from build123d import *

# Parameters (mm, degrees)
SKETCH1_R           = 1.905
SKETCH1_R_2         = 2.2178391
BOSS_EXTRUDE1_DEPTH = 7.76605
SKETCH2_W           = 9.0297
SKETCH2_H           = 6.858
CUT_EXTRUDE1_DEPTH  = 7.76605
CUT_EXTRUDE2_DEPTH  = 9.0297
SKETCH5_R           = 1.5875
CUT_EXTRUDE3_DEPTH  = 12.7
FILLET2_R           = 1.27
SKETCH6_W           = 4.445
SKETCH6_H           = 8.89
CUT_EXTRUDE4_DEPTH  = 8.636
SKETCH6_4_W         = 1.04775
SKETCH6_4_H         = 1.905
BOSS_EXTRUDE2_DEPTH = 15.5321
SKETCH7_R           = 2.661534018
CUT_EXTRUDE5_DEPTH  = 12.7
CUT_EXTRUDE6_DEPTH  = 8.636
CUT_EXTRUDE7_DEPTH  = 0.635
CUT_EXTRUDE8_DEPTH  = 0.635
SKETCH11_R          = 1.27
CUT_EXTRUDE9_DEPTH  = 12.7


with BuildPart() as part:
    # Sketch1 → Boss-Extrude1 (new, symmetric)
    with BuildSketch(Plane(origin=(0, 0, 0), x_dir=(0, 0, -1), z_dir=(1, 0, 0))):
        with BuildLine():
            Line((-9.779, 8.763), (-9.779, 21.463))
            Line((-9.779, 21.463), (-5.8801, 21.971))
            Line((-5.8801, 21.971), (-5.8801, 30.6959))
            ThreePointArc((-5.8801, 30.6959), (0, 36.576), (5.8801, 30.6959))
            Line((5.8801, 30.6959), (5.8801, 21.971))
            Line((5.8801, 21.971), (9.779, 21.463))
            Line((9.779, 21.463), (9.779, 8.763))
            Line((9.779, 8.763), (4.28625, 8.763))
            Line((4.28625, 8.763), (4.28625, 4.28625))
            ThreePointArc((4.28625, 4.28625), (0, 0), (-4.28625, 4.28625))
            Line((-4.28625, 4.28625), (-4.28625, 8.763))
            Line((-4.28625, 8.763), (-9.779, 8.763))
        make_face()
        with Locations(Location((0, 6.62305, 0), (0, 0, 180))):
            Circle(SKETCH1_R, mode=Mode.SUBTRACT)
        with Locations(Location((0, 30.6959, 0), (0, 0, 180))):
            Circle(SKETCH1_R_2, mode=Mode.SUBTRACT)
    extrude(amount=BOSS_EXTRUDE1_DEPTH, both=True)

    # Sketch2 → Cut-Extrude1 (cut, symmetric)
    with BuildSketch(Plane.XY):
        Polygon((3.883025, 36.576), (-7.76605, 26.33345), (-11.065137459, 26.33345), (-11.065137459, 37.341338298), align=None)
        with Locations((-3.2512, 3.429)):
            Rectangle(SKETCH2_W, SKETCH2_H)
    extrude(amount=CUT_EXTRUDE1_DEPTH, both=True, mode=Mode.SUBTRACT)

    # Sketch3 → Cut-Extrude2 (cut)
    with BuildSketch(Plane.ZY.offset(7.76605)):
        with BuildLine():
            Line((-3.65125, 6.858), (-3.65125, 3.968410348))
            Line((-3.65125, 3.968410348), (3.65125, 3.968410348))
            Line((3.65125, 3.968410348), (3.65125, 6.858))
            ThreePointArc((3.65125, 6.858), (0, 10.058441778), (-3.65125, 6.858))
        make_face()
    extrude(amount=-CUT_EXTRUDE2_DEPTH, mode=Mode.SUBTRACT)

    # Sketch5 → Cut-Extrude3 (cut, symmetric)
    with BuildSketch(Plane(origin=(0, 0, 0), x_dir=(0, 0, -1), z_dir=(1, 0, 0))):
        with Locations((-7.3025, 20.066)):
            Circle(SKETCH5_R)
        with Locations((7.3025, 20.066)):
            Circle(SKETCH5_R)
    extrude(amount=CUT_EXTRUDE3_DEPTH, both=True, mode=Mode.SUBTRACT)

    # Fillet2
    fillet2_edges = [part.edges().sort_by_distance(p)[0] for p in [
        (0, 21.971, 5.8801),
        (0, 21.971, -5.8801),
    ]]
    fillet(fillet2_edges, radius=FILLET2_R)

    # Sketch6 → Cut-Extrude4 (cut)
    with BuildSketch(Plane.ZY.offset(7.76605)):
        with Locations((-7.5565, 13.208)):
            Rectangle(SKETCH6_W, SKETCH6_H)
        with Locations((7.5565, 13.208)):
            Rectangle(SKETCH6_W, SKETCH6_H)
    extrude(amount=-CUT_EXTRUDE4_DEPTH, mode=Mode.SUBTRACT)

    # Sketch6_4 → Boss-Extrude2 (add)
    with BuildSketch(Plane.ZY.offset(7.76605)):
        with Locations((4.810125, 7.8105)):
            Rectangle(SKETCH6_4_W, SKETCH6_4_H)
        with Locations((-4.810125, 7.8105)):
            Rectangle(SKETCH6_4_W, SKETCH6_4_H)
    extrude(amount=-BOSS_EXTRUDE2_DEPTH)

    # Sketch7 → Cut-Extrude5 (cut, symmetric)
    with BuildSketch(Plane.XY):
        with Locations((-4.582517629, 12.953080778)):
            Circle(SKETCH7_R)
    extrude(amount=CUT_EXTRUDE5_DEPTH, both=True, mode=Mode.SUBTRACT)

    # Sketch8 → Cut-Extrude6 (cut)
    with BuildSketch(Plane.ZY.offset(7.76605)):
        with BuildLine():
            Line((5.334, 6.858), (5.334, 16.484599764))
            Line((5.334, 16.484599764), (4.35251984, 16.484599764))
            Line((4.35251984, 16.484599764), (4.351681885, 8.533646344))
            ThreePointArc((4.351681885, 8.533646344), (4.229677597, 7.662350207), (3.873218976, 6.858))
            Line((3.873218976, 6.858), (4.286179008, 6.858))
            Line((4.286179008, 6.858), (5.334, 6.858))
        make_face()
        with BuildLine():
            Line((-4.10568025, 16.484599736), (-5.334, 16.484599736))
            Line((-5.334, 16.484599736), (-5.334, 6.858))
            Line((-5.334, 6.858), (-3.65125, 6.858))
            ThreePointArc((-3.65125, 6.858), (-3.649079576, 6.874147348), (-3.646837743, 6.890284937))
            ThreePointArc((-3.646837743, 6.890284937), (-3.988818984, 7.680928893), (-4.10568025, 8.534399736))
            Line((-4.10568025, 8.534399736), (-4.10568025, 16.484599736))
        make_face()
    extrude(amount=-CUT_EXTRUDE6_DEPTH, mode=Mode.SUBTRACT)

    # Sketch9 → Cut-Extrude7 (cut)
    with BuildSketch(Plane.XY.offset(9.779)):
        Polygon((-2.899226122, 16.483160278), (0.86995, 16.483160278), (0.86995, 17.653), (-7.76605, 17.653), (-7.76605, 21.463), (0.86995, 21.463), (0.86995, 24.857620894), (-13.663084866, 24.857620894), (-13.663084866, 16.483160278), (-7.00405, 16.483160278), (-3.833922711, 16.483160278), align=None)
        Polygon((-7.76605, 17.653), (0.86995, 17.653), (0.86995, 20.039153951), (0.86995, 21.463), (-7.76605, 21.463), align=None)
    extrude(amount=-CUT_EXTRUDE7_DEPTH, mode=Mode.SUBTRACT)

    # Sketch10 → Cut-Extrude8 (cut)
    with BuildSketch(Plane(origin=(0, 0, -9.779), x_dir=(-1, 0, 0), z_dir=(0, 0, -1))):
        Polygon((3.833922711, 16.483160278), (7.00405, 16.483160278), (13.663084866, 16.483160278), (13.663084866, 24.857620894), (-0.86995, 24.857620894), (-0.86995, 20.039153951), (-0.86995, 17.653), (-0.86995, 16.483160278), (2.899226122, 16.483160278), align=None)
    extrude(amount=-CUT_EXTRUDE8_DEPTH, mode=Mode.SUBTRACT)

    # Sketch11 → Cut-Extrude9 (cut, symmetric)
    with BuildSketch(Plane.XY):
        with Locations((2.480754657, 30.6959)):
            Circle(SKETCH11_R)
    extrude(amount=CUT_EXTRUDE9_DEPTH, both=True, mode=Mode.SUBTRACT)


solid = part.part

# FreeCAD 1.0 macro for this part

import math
import FreeCAD as App
import Part
import Sketcher
from FreeCAD import Vector
Q = App.Units.Quantity


def edges_at(feature, points):
    """Names of the edges that pass closest to the given points."""
    edges = feature.Shape.Edges
    near = lambda p: min(range(len(edges)), key=lambda i: edges[i].distToShape(Part.Vertex(*p))[0])
    return sorted({f"Edge{near(p) + 1}" for p in points})


def add_polygon(sketch, points):
    """Adds a closed chain of lines whose ends are joined by coincident constraints."""
    first, n = sketch.GeometryCount, len(points)
    for a, b in zip(points, points[1:] + points[:1]):
        sketch.addGeometry(Part.LineSegment(App.Vector(*a, 0), App.Vector(*b, 0)), False)
    for i in range(n):
        sketch.addConstraint(Sketcher.Constraint("Coincident", first + i, 2, first + (i + 1) % n, 1))

doc = App.newDocument("Part")
body = doc.addObject("PartDesign::Body", "Body")

# Sketch on YZ plane
sketch1 = body.newObject("Sketcher::SketchObject", "Sketch")
sketch1.AttachmentSupport = (doc.getObject("YZ_Plane"), [""])
sketch1.MapMode = "FlatFace"
sketch1.addGeometry([
    Part.LineSegment(Vector(21.5, 9.8, 0), Vector(8.8, 9.8, 0)),  # 0
    Part.LineSegment(Vector(8.8, 9.8, 0), Vector(8.8, 4.3, 0)),  # 1
    Part.LineSegment(Vector(8.8, 4.3, 0), Vector(4.3, 4.3, 0)),  # 2
    Part.ArcOfCircle(Part.Circle(Vector(4.3, 0, 0), Vector(0, 0, 1), 4.3), math.radians(90), math.radians(270)),  # 3
    Part.LineSegment(Vector(4.3, -4.3, 0), Vector(8.8, -4.3, 0)),  # 4
    Part.LineSegment(Vector(8.8, -4.3, 0), Vector(8.8, -9.8, 0)),  # 5
    Part.LineSegment(Vector(8.8, -9.8, 0), Vector(21.5, -9.8, 0)),  # 6
    Part.LineSegment(Vector(21.5, -9.8, 0), Vector(22, -5.9, 0)),  # 7
    Part.LineSegment(Vector(22, -5.9, 0), Vector(30.7, -5.9, 0)),  # 8
    Part.ArcOfCircle(Part.Circle(Vector(30.7, 0, 0), Vector(0, 0, 1), 5.9), math.radians(-90), math.radians(90)),  # 9
    Part.LineSegment(Vector(30.7, 5.9, 0), Vector(22, 5.9, 0)),  # 10
    Part.LineSegment(Vector(22, 5.9, 0), Vector(21.5, 9.8, 0)),  # 11
    Part.Circle(Vector(6.6, 0, 0), Vector(0, 0, 1), 1.9),  # 12
    Part.Circle(Vector(30.7, 0, 0), Vector(0, 0, 1), 2.2),  # 13
], False)
sketch1.addConstraint([
    Sketcher.Constraint("Coincident", 0, 2, 1, 1),
    Sketcher.Constraint("Coincident", 1, 2, 2, 1),
    Sketcher.Constraint("Tangent", 2, 2, 3, 1),
    Sketcher.Constraint("Tangent", 3, 2, 4, 1),
    Sketcher.Constraint("Coincident", 4, 2, 5, 1),
    Sketcher.Constraint("Coincident", 5, 2, 6, 1),
    Sketcher.Constraint("Coincident", 6, 2, 7, 1),
    Sketcher.Constraint("Coincident", 7, 2, 8, 1),
    Sketcher.Constraint("Tangent", 8, 2, 9, 1),
    Sketcher.Constraint("Tangent", 9, 2, 10, 1),
    Sketcher.Constraint("Coincident", 10, 2, 11, 1),
    Sketcher.Constraint("Coincident", 11, 2, 0, 1),
    Sketcher.Constraint("Horizontal", 0),
    Sketcher.Constraint("Vertical", 1),
    Sketcher.Constraint("Horizontal", 2),
    Sketcher.Constraint("Horizontal", 4),
    Sketcher.Constraint("Vertical", 5),
    Sketcher.Constraint("Horizontal", 6),
    Sketcher.Constraint("Horizontal", 8),
    Sketcher.Constraint("Horizontal", 10),
    Sketcher.Constraint("Coincident", 13, 3, 9, 3),
    Sketcher.Constraint("Symmetric", 1, 2, 4, 2, -1),
    Sketcher.Constraint("Symmetric", 7, 2, 10, 2, -1),
    Sketcher.Constraint("Symmetric", 6, 2, 11, 2, -1),
    Sketcher.Constraint("PointOnObject", 12, 3, -1),
    Sketcher.Constraint("Diameter", 12, Q("0.15 in")),
    Sketcher.Constraint("DistanceX", 0, 2, 0, 1, Q("0.5 in")),
    Sketcher.Constraint("Radius", 9, Q("0.2315 in")),
    Sketcher.Constraint("DistanceX", 6, 2, 7, 2, Q("0.02 in")),
    Sketcher.Constraint("Diameter", 13, 4.435678),
    Sketcher.Constraint("DistanceX", 8, 1, 8, 2, Q("0.3435 in")),
    Sketcher.Constraint("DistanceX", -1, 1, 0, 2, Q("0.345 in")),
    Sketcher.Constraint("DistanceY", -1, 1, 0, 2, Q("0.385 in")),
    Sketcher.Constraint("Radius", 3, 4.28625),
    Sketcher.Constraint("DistanceX", 3, 3, 12, 3, Q("0.092 in")),
    Sketcher.Constraint("DistanceX", 2, 2, 2, 1, 4.47675),
])
pad1 = body.newObject("PartDesign::Pad", "Pad")
pad1.Profile = sketch1
pad1.Length = Q("0.6115 in")
pad1.Midplane = True

# Sketch on XY plane
sketch2 = body.newObject("Sketcher::SketchObject", "Sketch001")
sketch2.AttachmentSupport = (doc.getObject("XY_Plane"), [""])
sketch2.MapMode = "FlatFace"
add_polygon(sketch2, [(-7.8, 26.3), (3.9, 36.6), (-11.1, 37.3), (-11.1, 26.3)])  # lines 0-3
add_polygon(sketch2, [(-7.8, 6.9), (-7.8, 0), (1.3, 0), (1.3, 6.9)])  # lines 4-7
sketch2.addConstraint([
    Sketcher.Constraint("Vertical", 2),
    Sketcher.Constraint("Horizontal", 3),
    Sketcher.Constraint("Vertical", 4),
    Sketcher.Constraint("Horizontal", 5),
    Sketcher.Constraint("Vertical", 6),
    Sketcher.Constraint("Horizontal", 7),
    Sketcher.Constraint("PointOnObject", 4, 2, -1),
    Sketcher.Constraint("Vertical", 3, 2, 4, 2),
    Sketcher.Constraint("DistanceY", 4, 2, 4, 1, Q("0.27 in")),
    Sketcher.Constraint("DistanceY", -1, 1, 0, 2, Q("1.44 in")),
    Sketcher.Constraint("DistanceX", 5, 1, 5, 2, Q("0.3555 in")),
    Sketcher.Constraint("DistanceY", 2, 2, 2, 1, 11.007888),
    Sketcher.Constraint("DistanceX", 3, 1, 3, 2, 3.299087),
    Sketcher.Constraint("DistanceY", -1, 1, 1, 2, 37.341338),
    Sketcher.Constraint("DistanceX", 3, 2, -1, 1, 7.76605),
    Sketcher.Constraint("Distance", 0, 15.511634),
])
pocket1 = body.newObject("PartDesign::Pocket", "Pocket")
pocket1.Profile = sketch2
pocket1.Length = Q("0.6115 in")
pocket1.Midplane = True

# Sketch on YZ plane
sketch3 = body.newObject("Sketcher::SketchObject", "Sketch002")
sketch3.AttachmentSupport = (doc.getObject("YZ_Plane"), [""])
sketch3.MapMode = "FlatFace"
sketch3.AttachmentOffset = App.Placement(Vector(0, 0, -7.76605), App.Rotation())
sketch3.addGeometry([
    Part.LineSegment(Vector(6.9, -3.7, 0), Vector(4, -3.7, 0)),
    Part.LineSegment(Vector(4, -3.7, 0), Vector(4, 3.7, 0)),
    Part.LineSegment(Vector(4, 3.7, 0), Vector(6.9, 3.7, 0)),
    Part.ArcOfCircle(Part.Circle(Vector(6.4, 0, 0), Vector(0, 0, 1), 3.7), math.radians(-82), math.radians(82)),
], False)
sketch3.addConstraint([
    Sketcher.Constraint("Coincident", 0, 2, 1, 1),
    Sketcher.Constraint("Coincident", 1, 2, 2, 1),
    Sketcher.Constraint("Coincident", 2, 2, 3, 2),
    Sketcher.Constraint("Coincident", 3, 1, 0, 1),
    Sketcher.Constraint("Horizontal", 0),
    Sketcher.Constraint("Vertical", 1),
    Sketcher.Constraint("Horizontal", 2),
    Sketcher.Constraint("Symmetric", 2, 2, 3, 1, -1),
    Sketcher.Constraint("Radius", 3, Q("0.145 in")),
    Sketcher.Constraint("DistanceX", -1, 1, 2, 2, Q("0.27 in")),
    Sketcher.Constraint("DistanceY", 1, 1, 1, 2, Q("0.2875 in")),
    Sketcher.Constraint("DistanceX", 0, 2, 0, 1, 2.88959),
])
pocket2 = body.newObject("PartDesign::Pocket", "Pocket001")
pocket2.Profile = sketch3
pocket2.Length = Q("0.3555 in")
pocket2.Reversed = True

# Sketch on YZ plane
sketch4 = body.newObject("Sketcher::SketchObject", "Sketch003")
sketch4.AttachmentSupport = (doc.getObject("YZ_Plane"), [""])
sketch4.MapMode = "FlatFace"
sketch4.addGeometry([
    Part.Circle(Vector(20.1, 7.3, 0), Vector(0, 0, 1), 1.6),
    Part.Circle(Vector(20.1, -7.3, 0), Vector(0, 0, 1), 1.6),
], False)
sketch4.addConstraint([
    Sketcher.Constraint("Equal", 0, 1),
    Sketcher.Constraint("Symmetric", 0, 3, 1, 3, -1),
    Sketcher.Constraint("Diameter", 0, Q("0.125 in")),
    Sketcher.Constraint("DistanceX", -1, 1, 0, 3, Q("0.79 in")),
    Sketcher.Constraint("DistanceY", 1, 3, 0, 3, Q("0.575 in")),
])
pocket3 = body.newObject("PartDesign::Pocket", "Pocket002")
pocket3.Profile = sketch4
pocket3.Length = Q("1 in")
pocket3.Midplane = True
doc.recompute()

fillet = body.newObject("PartDesign::Fillet", "Fillet")
fillet.Base = (pocket3, edges_at(pocket3, [(0, 21.971, 5.88), (0, 21.971, -5.88)]))
fillet.Radius = Q("0.05 in")

# Sketch on YZ plane
sketch5 = body.newObject("Sketcher::SketchObject", "Sketch004")
sketch5.AttachmentSupport = (doc.getObject("YZ_Plane"), [""])
sketch5.MapMode = "FlatFace"
sketch5.AttachmentOffset = App.Placement(Vector(0, 0, -7.76605), App.Rotation())
add_polygon(sketch5, [(17.7, -9.8), (8.8, -9.8), (8.8, -5.3), (17.7, -5.3)])  # lines 0-3
add_polygon(sketch5, [(17.7, 5.3), (8.8, 5.3), (8.8, 9.8), (17.7, 9.8)])  # lines 4-7
sketch5.addConstraint([
    Sketcher.Constraint("Horizontal", 0),
    Sketcher.Constraint("Vertical", 1),
    Sketcher.Constraint("Horizontal", 2),
    Sketcher.Constraint("Vertical", 3),
    Sketcher.Constraint("Horizontal", 4),
    Sketcher.Constraint("Vertical", 5),
    Sketcher.Constraint("Horizontal", 6),
    Sketcher.Constraint("Vertical", 7),
    Sketcher.Constraint("Symmetric", 1, 2, 4, 2, -1),
    Sketcher.Constraint("Symmetric", 3, 2, 6, 2, -1),
    Sketcher.Constraint("DistanceX", 0, 2, 0, 1, Q("0.35 in")),
    Sketcher.Constraint("DistanceY", 1, 1, 1, 2, Q("0.175 in")),
    Sketcher.Constraint("DistanceY", 1, 2, -1, 1, Q("0.21 in")),
    Sketcher.Constraint("DistanceX", -1, 1, 0, 2, Q("0.345 in")),
])
pocket4 = body.newObject("PartDesign::Pocket", "Pocket003")
pocket4.Profile = sketch5
pocket4.Length = Q("0.34 in")
pocket4.Reversed = True

# Sketch on YZ plane
sketch6 = body.newObject("Sketcher::SketchObject", "Sketch005")
sketch6.AttachmentSupport = (doc.getObject("YZ_Plane"), [""])
sketch6.MapMode = "FlatFace"
sketch6.AttachmentOffset = App.Placement(Vector(0, 0, -7.76605), App.Rotation())
add_polygon(sketch6, [(8.8, 4.3), (6.9, 4.3), (6.9, 5.3), (8.8, 5.3)])  # lines 0-3
add_polygon(sketch6, [(8.8, -5.3), (6.9, -5.3), (6.9, -4.3), (8.8, -4.3)])  # lines 4-7
sketch6.addConstraint([
    Sketcher.Constraint("Horizontal", 0),
    Sketcher.Constraint("Vertical", 1),
    Sketcher.Constraint("Horizontal", 2),
    Sketcher.Constraint("Vertical", 3),
    Sketcher.Constraint("Horizontal", 4),
    Sketcher.Constraint("Vertical", 5),
    Sketcher.Constraint("Horizontal", 6),
    Sketcher.Constraint("Vertical", 7),
    Sketcher.Constraint("Symmetric", 1, 2, 4, 2, -1),
    Sketcher.Constraint("Symmetric", 3, 2, 6, 2, -1),
    Sketcher.Constraint("DistanceX", 0, 2, 0, 1, Q("0.075 in")),
    Sketcher.Constraint("DistanceX", -1, 1, 0, 2, Q("0.27 in")),
    Sketcher.Constraint("DistanceY", -1, 1, 1, 2, Q("0.21 in")),
    Sketcher.Constraint("DistanceY", 5, 2, 0, 2, Q("0.3375 in")),
])
pad2 = body.newObject("PartDesign::Pad", "Pad001")
pad2.Profile = sketch6
pad2.Length = Q("0.6115 in")

# Sketch on XY plane
sketch7 = body.newObject("Sketcher::SketchObject", "Sketch006")
sketch7.AttachmentSupport = (doc.getObject("XY_Plane"), [""])
sketch7.MapMode = "FlatFace"
sketch7.addGeometry(Part.Circle(Vector(-4.6, 13, 0), Vector(0, 0, 1), 2.7), False)
sketch7.addConstraint([
    Sketcher.Constraint("Diameter", 0, 5.323068),
    Sketcher.Constraint("DistanceY", -1, 1, 0, 3, 12.953081),
    Sketcher.Constraint("DistanceX", 0, 3, -1, 1, 4.582518),
])
pocket5 = body.newObject("PartDesign::Pocket", "Pocket004")
pocket5.Profile = sketch7
pocket5.Length = Q("1 in")
pocket5.Midplane = True

# Sketch on YZ plane
sketch8 = body.newObject("Sketcher::SketchObject", "Sketch007")
sketch8.AttachmentSupport = (doc.getObject("YZ_Plane"), [""])
sketch8.MapMode = "FlatFace"
sketch8.AttachmentOffset = App.Placement(Vector(0, 0, -7.76605), App.Rotation())
sketch8.addGeometry([
    Part.LineSegment(Vector(6.858, 5.334, 0), Vector(16.485, 5.334, 0)),  # 0
    Part.LineSegment(Vector(16.485, 5.334, 0), Vector(16.485, 4.353, 0)),  # 1
    Part.LineSegment(Vector(16.485, 4.353, 0), Vector(8.534, 4.352, 0)),  # 2
    Part.ArcOfCircle(Part.Circle(Vector(8.534, 1.177, 0), Vector(0, 0, 1), 3.175), math.radians(90), math.radians(122)),  # 3
    Part.LineSegment(Vector(6.858, 3.873, 0), Vector(6.858, 5.334, 0)),  # 4
    Part.LineSegment(Vector(16.485, -4.106, 0), Vector(16.485, -5.334, 0)),  # 5
    Part.LineSegment(Vector(16.485, -5.334, 0), Vector(6.858, -5.334, 0)),  # 6
    Part.LineSegment(Vector(6.858, -5.334, 0), Vector(6.858, -3.651, 0)),  # 7
    Part.ArcOfCircle(Part.Circle(Vector(6.375, 0, 0), Vector(0, 0, 1), 3.683), math.radians(-82.47), math.radians(-81.96)),  # 8
    Part.ArcOfCircle(Part.Circle(Vector(8.534, -0.931, 0), Vector(0, 0, 1), 3.175), math.radians(-121), math.radians(-90)),  # 9
    Part.LineSegment(Vector(8.534, -4.106, 0), Vector(16.485, -4.106, 0)),  # 10
], False)
sketch8.addConstraint([
    Sketcher.Constraint("Coincident", 0, 2, 1, 1),
    Sketcher.Constraint("Coincident", 1, 2, 2, 1),
    Sketcher.Constraint("Tangent", 2, 2, 3, 1),
    Sketcher.Constraint("Coincident", 3, 2, 4, 1),
    Sketcher.Constraint("Coincident", 4, 2, 0, 1),
    Sketcher.Constraint("Coincident", 5, 2, 6, 1),
    Sketcher.Constraint("Coincident", 6, 2, 7, 1),
    Sketcher.Constraint("Coincident", 7, 2, 8, 1),
    Sketcher.Constraint("Coincident", 8, 2, 9, 1),
    Sketcher.Constraint("Tangent", 9, 2, 10, 1),
    Sketcher.Constraint("Coincident", 10, 2, 5, 1),
    Sketcher.Constraint("Horizontal", 0),
    Sketcher.Constraint("Vertical", 1),
    Sketcher.Constraint("Vertical", 4),
    Sketcher.Constraint("Vertical", 5),
    Sketcher.Constraint("Horizontal", 6),
    Sketcher.Constraint("Vertical", 7),
    Sketcher.Constraint("Horizontal", 10),
    Sketcher.Constraint("Symmetric", 0, 2, 5, 2, -1),
    Sketcher.Constraint("Vertical", 4, 2, 6, 2),
    Sketcher.Constraint("Radius", 9, Q("0.125 in")),
    Sketcher.Constraint("DistanceX", 0, 1, 0, 2, Q("0.379 in")),
    Sketcher.Constraint("DistanceX", 10, 1, 10, 2, Q("0.313 in")),
    Sketcher.Constraint("DistanceY", -1, 1, 0, 2, Q("0.21 in")),
    Sketcher.Constraint("DistanceX", -1, 1, 3, 2, Q("0.27 in")),
    Sketcher.Constraint("Radius", 3, 3.174581),
    Sketcher.Constraint("Radius", 8, 3.68305),
    Sketcher.Constraint("DistanceY", 9, 3, 1, 2, Q("0.208 in")),
    Sketcher.Constraint("DistanceY", 1, 2, 1, 1, 0.98148),
    Sketcher.Constraint("DistanceY", 4, 1, 4, 2, 1.460781),
    Sketcher.Constraint("DistanceY", 7, 1, 7, 2, 1.68275),
    Sketcher.Constraint("DistanceY", -1, 1, 3, 3, 1.177101),
    Sketcher.Constraint("DistanceY", 7, 2, 8, 3, 3.651299),
])
pocket6 = body.newObject("PartDesign::Pocket", "Pocket005")
pocket6.Profile = sketch8
pocket6.Length = Q("0.34 in")
pocket6.Reversed = True

# Sketch on XY plane
sketch9 = body.newObject("Sketcher::SketchObject", "Sketch008")
sketch9.AttachmentSupport = (doc.getObject("XY_Plane"), [""])
sketch9.MapMode = "FlatFace"
sketch9.AttachmentOffset = App.Placement(Vector(0, 0, 0.385 * 25.4), App.Rotation())
add_polygon(sketch9, [(1, 16), (1, 25), (-14, 25), (-14, 16)])  # lines 0-3
sketch9.addConstraint([
    Sketcher.Constraint("Vertical", 0),
    Sketcher.Constraint("Horizontal", 1),
    Sketcher.Constraint("Vertical", 2),
    Sketcher.Constraint("Horizontal", 3),
    Sketcher.Constraint("DistanceY", 0, 1, 0, 2, 8.374461),
    Sketcher.Constraint("DistanceX", 1, 2, 1, 1, 14.533035),
    Sketcher.Constraint("DistanceX", -1, 1, 0, 2, 0.86995),
    Sketcher.Constraint("DistanceY", -1, 1, 0, 2, 24.857621),
])
pocket7 = body.newObject("PartDesign::Pocket", "Pocket006")
pocket7.Profile = sketch9
pocket7.Length = Q("0.025 in")

# Sketch on XY plane
sketch10 = body.newObject("Sketcher::SketchObject", "Sketch009")
sketch10.AttachmentSupport = (doc.getObject("XY_Plane"), [""])
sketch10.MapMode = "FlatFace"
sketch10.AttachmentOffset = App.Placement(Vector(0, 0, -0.385 * 25.4), App.Rotation())
add_polygon(sketch10, [(-14, 16), (-14, 25), (1, 25), (1, 16)])  # lines 0-3
sketch10.addConstraint([
    Sketcher.Constraint("Vertical", 0),
    Sketcher.Constraint("Horizontal", 1),
    Sketcher.Constraint("Vertical", 2),
    Sketcher.Constraint("Horizontal", 3),
    Sketcher.Constraint("DistanceY", 0, 1, 0, 2, 8.374461),
    Sketcher.Constraint("DistanceX", 1, 1, 1, 2, 14.533035),
    Sketcher.Constraint("DistanceY", -1, 1, 0, 2, 24.857621),
    Sketcher.Constraint("DistanceX", -1, 1, 1, 2, 0.86995),
])
pocket8 = body.newObject("PartDesign::Pocket", "Pocket007")
pocket8.Profile = sketch10
pocket8.Length = Q("0.025 in")
pocket8.Reversed = True

# Sketch on XY plane
sketch11 = body.newObject("Sketcher::SketchObject", "Sketch010")
sketch11.AttachmentSupport = (doc.getObject("XY_Plane"), [""])
sketch11.MapMode = "FlatFace"
sketch11.addGeometry(Part.Circle(Vector(2.5, 30.7, 0), Vector(0, 0, 1), 1.3), False)
sketch11.addConstraint([
    Sketcher.Constraint("Diameter", 0, Q("0.1 in")),
    Sketcher.Constraint("DistanceY", -1, 1, 0, 3, Q("1.2085 in")),
    Sketcher.Constraint("DistanceX", -1, 1, 0, 3, 2.480755),
])
pocket9 = body.newObject("PartDesign::Pocket", "Pocket008")
pocket9.Profile = sketch11
pocket9.Length = Q("1 in")
pocket9.Midplane = True

doc.recompute()
